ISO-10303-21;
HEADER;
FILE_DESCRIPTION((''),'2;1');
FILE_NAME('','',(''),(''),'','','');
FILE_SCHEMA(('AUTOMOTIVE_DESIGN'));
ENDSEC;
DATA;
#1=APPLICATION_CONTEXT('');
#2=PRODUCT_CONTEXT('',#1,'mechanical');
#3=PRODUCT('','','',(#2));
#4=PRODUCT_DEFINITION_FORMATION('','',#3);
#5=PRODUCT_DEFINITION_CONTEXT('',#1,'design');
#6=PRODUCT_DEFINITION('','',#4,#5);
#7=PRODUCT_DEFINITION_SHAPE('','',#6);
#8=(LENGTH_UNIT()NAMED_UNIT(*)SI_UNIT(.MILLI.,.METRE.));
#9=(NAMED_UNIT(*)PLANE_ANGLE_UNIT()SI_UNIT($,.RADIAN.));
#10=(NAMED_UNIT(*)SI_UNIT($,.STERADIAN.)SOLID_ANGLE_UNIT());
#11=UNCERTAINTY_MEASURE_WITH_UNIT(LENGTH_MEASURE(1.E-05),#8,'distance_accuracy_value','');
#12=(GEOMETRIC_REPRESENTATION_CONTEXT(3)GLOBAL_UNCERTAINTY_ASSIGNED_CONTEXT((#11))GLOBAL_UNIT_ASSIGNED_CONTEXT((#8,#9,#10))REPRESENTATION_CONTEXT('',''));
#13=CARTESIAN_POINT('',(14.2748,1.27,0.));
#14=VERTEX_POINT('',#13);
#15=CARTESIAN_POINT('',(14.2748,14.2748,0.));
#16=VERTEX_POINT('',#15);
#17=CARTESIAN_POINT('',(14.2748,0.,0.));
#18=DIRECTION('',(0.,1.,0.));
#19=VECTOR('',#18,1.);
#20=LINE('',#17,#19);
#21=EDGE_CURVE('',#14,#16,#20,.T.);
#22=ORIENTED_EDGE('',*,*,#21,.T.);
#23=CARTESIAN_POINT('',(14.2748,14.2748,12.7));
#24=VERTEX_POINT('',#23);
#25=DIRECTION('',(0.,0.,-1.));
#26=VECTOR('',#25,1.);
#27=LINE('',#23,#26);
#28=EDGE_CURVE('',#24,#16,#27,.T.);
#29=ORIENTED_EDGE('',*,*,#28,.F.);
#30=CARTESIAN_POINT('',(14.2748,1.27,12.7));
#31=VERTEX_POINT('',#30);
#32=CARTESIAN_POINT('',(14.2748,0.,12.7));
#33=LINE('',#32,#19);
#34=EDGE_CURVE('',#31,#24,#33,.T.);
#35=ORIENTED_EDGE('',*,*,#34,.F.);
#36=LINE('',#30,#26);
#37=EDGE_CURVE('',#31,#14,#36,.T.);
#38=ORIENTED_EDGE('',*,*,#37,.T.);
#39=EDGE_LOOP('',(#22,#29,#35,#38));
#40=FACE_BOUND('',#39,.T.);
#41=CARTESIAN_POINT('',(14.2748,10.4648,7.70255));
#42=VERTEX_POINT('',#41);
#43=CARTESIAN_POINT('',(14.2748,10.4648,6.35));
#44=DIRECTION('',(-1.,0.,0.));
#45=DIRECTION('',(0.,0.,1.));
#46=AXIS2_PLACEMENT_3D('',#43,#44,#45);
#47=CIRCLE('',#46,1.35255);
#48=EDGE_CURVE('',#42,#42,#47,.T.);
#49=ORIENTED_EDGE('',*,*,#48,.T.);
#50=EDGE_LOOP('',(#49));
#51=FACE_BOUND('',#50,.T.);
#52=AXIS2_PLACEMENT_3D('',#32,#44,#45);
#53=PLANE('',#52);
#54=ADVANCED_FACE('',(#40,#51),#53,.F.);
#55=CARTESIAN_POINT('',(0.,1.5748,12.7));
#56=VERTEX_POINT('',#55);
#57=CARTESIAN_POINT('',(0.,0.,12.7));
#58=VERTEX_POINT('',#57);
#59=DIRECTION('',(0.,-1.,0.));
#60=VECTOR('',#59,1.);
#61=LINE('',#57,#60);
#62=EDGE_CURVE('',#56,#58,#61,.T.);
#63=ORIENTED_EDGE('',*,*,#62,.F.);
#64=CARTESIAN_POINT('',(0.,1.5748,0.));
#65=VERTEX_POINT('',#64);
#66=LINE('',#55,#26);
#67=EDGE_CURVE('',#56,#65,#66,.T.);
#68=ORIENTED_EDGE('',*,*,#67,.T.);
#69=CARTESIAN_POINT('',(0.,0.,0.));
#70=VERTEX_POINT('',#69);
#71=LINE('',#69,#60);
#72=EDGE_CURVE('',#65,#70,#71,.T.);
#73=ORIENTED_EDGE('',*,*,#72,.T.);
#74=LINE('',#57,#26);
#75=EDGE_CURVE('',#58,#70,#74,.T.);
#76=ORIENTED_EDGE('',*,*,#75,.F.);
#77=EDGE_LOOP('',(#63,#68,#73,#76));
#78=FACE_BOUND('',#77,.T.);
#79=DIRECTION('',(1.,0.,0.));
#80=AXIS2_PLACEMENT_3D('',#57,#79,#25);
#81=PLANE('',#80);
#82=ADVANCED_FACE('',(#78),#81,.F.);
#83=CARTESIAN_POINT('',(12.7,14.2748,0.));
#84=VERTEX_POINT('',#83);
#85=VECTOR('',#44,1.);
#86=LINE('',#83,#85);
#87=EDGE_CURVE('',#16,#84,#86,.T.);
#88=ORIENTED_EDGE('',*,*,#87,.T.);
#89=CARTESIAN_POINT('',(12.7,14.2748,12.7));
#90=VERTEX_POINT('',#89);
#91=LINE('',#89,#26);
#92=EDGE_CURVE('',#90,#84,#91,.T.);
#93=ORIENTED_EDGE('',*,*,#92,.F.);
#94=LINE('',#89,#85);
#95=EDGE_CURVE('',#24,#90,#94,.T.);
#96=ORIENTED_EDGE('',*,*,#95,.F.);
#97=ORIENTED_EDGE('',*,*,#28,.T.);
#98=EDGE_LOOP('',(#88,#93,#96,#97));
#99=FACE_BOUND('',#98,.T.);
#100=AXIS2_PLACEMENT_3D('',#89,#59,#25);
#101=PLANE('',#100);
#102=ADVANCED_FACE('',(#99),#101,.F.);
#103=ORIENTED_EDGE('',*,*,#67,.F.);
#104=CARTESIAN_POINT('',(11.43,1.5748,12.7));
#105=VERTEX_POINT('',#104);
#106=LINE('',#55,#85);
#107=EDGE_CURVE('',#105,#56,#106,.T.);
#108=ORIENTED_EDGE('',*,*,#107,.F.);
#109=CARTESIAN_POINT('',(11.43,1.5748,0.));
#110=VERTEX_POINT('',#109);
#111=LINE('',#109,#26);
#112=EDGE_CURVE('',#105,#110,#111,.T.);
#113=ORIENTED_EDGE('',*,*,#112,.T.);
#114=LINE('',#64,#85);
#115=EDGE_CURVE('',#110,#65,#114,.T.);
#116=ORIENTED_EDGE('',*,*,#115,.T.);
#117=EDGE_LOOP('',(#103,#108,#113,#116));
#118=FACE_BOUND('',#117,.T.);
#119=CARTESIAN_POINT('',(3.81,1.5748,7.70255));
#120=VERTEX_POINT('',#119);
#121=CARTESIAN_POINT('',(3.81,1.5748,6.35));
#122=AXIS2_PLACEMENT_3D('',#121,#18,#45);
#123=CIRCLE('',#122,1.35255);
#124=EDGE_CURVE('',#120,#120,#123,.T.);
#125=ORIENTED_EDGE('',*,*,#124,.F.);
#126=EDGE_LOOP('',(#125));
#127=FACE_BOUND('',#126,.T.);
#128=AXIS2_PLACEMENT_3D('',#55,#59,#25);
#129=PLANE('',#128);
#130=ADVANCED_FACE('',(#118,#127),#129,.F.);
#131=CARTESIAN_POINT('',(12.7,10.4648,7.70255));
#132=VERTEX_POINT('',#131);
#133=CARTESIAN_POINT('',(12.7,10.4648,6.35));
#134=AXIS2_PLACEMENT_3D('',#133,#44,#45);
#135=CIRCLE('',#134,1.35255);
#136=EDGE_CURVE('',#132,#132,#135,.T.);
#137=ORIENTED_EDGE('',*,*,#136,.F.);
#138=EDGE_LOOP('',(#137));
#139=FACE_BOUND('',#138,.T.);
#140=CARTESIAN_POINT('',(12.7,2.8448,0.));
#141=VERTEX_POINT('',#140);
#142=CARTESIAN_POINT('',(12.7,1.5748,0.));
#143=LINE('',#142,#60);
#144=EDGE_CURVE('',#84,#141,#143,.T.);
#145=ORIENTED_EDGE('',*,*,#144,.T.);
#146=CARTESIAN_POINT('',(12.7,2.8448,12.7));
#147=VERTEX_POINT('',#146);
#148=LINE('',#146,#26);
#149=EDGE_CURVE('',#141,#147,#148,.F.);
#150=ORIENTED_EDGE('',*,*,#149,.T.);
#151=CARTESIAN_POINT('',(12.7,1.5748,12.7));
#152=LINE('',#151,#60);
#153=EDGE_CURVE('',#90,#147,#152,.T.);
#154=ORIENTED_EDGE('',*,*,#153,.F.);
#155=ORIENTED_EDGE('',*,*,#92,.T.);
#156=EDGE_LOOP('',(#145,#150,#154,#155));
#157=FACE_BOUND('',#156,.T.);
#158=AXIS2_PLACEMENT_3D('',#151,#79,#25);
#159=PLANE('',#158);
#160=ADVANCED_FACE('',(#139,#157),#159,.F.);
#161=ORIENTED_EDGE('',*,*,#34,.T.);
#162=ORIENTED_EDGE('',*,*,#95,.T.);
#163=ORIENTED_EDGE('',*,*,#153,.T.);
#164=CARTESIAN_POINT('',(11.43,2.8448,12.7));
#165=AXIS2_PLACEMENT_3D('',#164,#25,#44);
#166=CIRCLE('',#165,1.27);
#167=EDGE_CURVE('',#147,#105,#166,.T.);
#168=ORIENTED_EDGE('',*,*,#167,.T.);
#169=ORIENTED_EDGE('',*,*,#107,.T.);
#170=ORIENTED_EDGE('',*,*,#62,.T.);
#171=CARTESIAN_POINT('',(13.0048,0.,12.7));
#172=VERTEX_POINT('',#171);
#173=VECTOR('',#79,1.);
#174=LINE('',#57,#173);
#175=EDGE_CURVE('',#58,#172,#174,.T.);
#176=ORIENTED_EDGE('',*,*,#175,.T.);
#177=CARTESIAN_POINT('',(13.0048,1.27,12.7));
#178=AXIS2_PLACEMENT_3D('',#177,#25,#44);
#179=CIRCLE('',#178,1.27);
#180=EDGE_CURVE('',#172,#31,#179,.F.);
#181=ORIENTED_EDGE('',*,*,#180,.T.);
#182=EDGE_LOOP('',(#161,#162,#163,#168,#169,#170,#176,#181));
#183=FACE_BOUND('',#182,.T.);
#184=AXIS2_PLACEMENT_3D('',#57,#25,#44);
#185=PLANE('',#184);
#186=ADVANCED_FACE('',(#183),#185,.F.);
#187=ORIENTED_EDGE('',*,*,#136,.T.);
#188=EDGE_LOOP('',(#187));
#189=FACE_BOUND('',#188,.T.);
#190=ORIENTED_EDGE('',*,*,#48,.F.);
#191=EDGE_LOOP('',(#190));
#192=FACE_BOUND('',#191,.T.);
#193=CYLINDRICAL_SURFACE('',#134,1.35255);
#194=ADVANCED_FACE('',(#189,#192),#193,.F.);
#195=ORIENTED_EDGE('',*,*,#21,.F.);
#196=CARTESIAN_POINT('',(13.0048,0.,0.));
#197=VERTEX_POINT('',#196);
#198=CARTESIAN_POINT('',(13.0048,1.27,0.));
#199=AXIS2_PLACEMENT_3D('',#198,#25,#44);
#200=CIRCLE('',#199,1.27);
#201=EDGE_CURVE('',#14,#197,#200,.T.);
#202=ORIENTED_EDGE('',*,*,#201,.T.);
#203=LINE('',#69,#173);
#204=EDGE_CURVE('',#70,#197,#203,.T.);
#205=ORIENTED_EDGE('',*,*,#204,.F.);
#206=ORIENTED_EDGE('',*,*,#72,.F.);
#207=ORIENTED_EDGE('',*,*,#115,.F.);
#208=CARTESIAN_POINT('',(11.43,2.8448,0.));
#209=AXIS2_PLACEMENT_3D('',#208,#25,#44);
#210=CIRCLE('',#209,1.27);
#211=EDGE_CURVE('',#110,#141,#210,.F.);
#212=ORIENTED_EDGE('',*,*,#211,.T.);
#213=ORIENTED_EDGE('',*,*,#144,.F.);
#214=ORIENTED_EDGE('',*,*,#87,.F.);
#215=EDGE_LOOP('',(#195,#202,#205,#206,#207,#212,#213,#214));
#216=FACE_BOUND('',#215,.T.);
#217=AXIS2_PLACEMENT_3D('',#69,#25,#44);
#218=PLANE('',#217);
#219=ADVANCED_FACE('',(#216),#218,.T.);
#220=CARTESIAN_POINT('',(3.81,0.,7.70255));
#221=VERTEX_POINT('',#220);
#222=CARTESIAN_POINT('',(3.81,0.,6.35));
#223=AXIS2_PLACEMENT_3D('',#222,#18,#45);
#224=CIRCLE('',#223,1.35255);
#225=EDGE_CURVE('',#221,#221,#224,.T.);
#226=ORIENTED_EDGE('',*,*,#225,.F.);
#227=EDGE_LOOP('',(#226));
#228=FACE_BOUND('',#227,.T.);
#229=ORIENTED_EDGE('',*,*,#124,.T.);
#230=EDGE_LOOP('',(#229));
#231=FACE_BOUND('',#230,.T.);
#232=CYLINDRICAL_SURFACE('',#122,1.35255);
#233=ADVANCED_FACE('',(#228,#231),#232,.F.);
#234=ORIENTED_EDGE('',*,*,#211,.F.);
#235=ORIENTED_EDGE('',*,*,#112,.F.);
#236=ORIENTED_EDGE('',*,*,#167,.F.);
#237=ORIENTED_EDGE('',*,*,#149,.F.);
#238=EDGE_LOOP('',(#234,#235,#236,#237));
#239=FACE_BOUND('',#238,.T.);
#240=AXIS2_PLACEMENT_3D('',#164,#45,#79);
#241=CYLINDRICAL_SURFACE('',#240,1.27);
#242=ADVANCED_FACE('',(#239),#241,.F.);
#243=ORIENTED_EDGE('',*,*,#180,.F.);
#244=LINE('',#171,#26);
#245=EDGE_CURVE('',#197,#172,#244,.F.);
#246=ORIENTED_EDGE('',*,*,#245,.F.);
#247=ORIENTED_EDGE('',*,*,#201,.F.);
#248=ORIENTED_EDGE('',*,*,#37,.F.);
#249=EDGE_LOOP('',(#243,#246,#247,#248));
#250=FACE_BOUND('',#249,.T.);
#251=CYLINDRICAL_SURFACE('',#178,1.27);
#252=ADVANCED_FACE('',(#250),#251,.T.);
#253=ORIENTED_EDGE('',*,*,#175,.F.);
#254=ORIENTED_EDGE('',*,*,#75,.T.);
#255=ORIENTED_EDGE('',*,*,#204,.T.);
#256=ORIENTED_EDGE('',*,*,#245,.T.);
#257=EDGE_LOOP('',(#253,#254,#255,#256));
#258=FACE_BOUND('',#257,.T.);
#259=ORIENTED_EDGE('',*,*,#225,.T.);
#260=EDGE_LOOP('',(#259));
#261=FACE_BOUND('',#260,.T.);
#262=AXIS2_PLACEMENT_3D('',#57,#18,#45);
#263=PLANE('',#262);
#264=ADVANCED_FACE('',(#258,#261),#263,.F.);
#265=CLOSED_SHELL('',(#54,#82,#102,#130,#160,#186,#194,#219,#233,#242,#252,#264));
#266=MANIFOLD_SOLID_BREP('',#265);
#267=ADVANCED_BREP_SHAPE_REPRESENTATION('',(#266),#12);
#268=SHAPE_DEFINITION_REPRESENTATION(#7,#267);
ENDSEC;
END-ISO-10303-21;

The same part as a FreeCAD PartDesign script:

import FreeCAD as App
import Part
import Sketcher

V = App.Vector
Q = App.Units.Quantity


def edges_at(feature, points):
    """Names of the edges that pass closest to the given points."""
    edges = feature.Shape.Edges
    near = lambda p: min(range(len(edges)), key=lambda i: edges[i].distToShape(Part.Vertex(*p))[0])
    return sorted({f"Edge{near(p) + 1}" for p in points})

doc = App.newDocument("Part")
body = doc.addObject("PartDesign::Body", "Body")

# Sketch on XY plane
sketch1 = body.newObject("Sketcher::SketchObject", "Sketch")
sketch1.AttachmentSupport = (doc.getObject("XY_Plane"), [""])
sketch1.MapMode = "FlatFace"
sketch1.addGeometry([
    Part.LineSegment(V(0, 0, 0), V(14.3, 0, 0)),  # 0
    Part.LineSegment(V(14.3, 0, 0), V(14.3, 14.3, 0)),  # 1
    Part.LineSegment(V(14.3, 14.3, 0), V(12.7, 14.3, 0)),  # 2
    Part.LineSegment(V(12.7, 14.3, 0), V(12.7, 1.6, 0)),  # 3
    Part.LineSegment(V(12.7, 1.6, 0), V(0, 1.6, 0)),  # 4
    Part.LineSegment(V(0, 1.6, 0), V(0, 0, 0)),  # 5
], False)
sketch1.addConstraint([
    Sketcher.Constraint("Coincident", 0, 2, 1, 1),
    Sketcher.Constraint("Coincident", 1, 2, 2, 1),
    Sketcher.Constraint("Coincident", 2, 2, 3, 1),
    Sketcher.Constraint("Coincident", 3, 2, 4, 1),
    Sketcher.Constraint("Coincident", 4, 2, 5, 1),
    Sketcher.Constraint("Coincident", 5, 2, 0, 1),
    Sketcher.Constraint("Horizontal", 0),
    Sketcher.Constraint("Vertical", 1),
    Sketcher.Constraint("Horizontal", 2),
    Sketcher.Constraint("Vertical", 3),
    Sketcher.Constraint("Horizontal", 4),
    Sketcher.Constraint("Vertical", 5),
    Sketcher.Constraint("Coincident", 5, 2, -1, 1),
    Sketcher.Constraint("Equal", 0, 1),
    Sketcher.Constraint("Equal", 4, 3),
    Sketcher.Constraint("DistanceX", 4, 2, 4, 1, Q("0.5 in")),
    Sketcher.Constraint("DistanceX", 0, 1, 0, 2, Q("0.562 in")),
])
pad1 = body.newObject("PartDesign::Pad", "Pad")
pad1.Profile = sketch1
pad1.Length = Q("0.5 in")
doc.recompute()

fillet = body.newObject("PartDesign::Fillet", "Fillet")
fillet.Base = (pad1, edges_at(pad1, [(12.7, 1.575, 6.35), (14.275, 0, 6.35)]))
fillet.Radius = Q("0.05 in")

# Sketch on YZ plane
sketch2 = body.newObject("Sketcher::SketchObject", "Sketch001")
sketch2.AttachmentSupport = (doc.getObject("YZ_Plane"), [""])
sketch2.MapMode = "FlatFace"
sketch2.AttachmentOffset = App.Placement(V(0, 0, 0.5 * 25.4), App.Rotation())
sketch2.addGeometry(Part.Circle(V(10.5, 6.3, 0), V(0, 0, 1), 1.4), False)
sketch2.addConstraint([
    Sketcher.Constraint("Diameter", 0, Q("0.1065 in")),
    Sketcher.Constraint("DistanceY", -1, 1, 0, 3, Q("0.25 in")),
    Sketcher.Constraint("DistanceX", -1, 1, 0, 3, Q("0.412 in")),
])
doc.recompute()
hole = body.newObject("PartDesign::Hole", "Hole")
hole.Profile = sketch2
hole.ThreadType = "None"
hole.Diameter = Q("0.1065 in")
hole.DepthType = "ThroughAll"
hole.Reversed = True

# Sketch on XZ plane
sketch3 = body.newObject("Sketcher::SketchObject", "Sketch002")
sketch3.AttachmentSupport = (doc.getObject("XZ_Plane"), [""])
sketch3.MapMode = "FlatFace"
sketch3.AttachmentOffset = App.Placement(V(0, 0, -0.062 * 25.4), App.Rotation())
sketch3.addGeometry(Part.Circle(V(3.8, 6.3, 0), V(0, 0, 1), 1.4), False)
sketch3.addConstraint([
    Sketcher.Constraint("Diameter", 0, Q("0.1065 in")),
    Sketcher.Constraint("DistanceX", -1, 1, 0, 3, Q("0.15 in")),
    Sketcher.Constraint("DistanceY", -1, 1, 0, 3, Q("0.25 in")),
])
doc.recompute()
hole2 = body.newObject("PartDesign::Hole", "Hole001")
hole2.Profile = sketch3
hole2.ThreadType = "None"
hole2.Diameter = Q("0.1065 in")
hole2.DepthType = "ThroughAll"
hole2.Reversed = True

doc.recompute()
